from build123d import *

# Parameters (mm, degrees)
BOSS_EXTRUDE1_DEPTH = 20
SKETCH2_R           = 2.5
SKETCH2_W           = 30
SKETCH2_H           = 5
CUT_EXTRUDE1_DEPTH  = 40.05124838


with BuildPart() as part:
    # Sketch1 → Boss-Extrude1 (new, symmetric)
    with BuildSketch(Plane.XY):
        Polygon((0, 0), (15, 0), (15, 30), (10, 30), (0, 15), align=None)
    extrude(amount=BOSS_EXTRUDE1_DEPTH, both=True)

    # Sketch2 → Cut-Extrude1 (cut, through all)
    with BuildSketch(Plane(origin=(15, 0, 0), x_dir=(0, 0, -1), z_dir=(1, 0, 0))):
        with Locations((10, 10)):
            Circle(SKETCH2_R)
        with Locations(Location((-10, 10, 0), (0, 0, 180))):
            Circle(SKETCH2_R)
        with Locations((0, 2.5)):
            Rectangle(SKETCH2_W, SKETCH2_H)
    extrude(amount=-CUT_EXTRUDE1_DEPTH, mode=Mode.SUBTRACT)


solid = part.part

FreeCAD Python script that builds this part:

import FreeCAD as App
import Part
import Sketcher
from FreeCAD import Vector
Q = App.Units.Quantity


def add_polygon(sketch, points):
    """Adds a closed chain of lines whose ends are joined by coincident constraints."""
    first, n = sketch.GeometryCount, len(points)
    for a, b in zip(points, points[1:] + points[:1]):
        sketch.addGeometry(Part.LineSegment(App.Vector(*a, 0), App.Vector(*b, 0)), False)
    for i in range(n):
        sketch.addConstraint(Sketcher.Constraint("Coincident", first + i, 2, first + (i + 1) % n, 1))

doc = App.newDocument("Part")
params = doc.addObject("Spreadsheet::Sheet", "Params")
for row, (alias, value) in enumerate([
    ("sketch1_width", "15 mm"),
    ("sketch1_width2", "5 mm"),
    ("sketch1_height", "30 mm"),
    ("pad1_length", "40 mm"),
    ("sketch2_diameter", "5 mm"),
    ("sketch2_width", "5 mm"),
    ("sketch2_height", "30 mm"),
], start=1):
    params.set(f"A{row}", alias)
    params.set(f"B{row}", "=" + value)
    params.setAlias(f"B{row}", alias)

body = doc.addObject("PartDesign::Body", "Body")

sketch1 = doc.addObject("Sketcher::SketchObject", "Sketch")
body.addObject(sketch1)
sketch1.AttachmentSupport = (doc.XY_Plane, [""])
sketch1.MapMode = "FlatFace"
add_polygon(sketch1, [(0, 0), (15, 0), (15, 30), (10, 30), (0, 15)])
sketch1.addConstraint(Sketcher.Constraint("Horizontal", 0))
sketch1.addConstraint(Sketcher.Constraint("Vertical", 1))
sketch1.addConstraint(Sketcher.Constraint("Horizontal", 2))
sketch1.addConstraint(Sketcher.Constraint("Vertical", 4))
sketch1.addConstraint(Sketcher.Constraint("Coincident", 4, 2, -1, 1))
sketch1.addConstraint(Sketcher.Constraint("Equal", 0, 4))
sketch1.addConstraint(Sketcher.Constraint("DistanceX", 0, 1, 0, 2, Q("15 mm")))
sketch1.addConstraint(Sketcher.Constraint("DistanceX", 2, 2, 2, 1, Q("5 mm")))
sketch1.addConstraint(Sketcher.Constraint("DistanceY", 1, 1, 1, 2, Q("30 mm")))
sketch1.setExpression("Constraints[11]", "Params.sketch1_width")
sketch1.setExpression("Constraints[12]", "Params.sketch1_width2")
sketch1.setExpression("Constraints[13]", "Params.sketch1_height")
pad1 = doc.addObject("PartDesign::Pad", "Pad")
body.addObject(pad1)
pad1.Profile = sketch1
pad1.setExpression("Length", "Params.pad1_length")
pad1.Midplane = True

sketch2 = doc.addObject("Sketcher::SketchObject", "Sketch001")
body.addObject(sketch2)
sketch2.AttachmentSupport = (doc.YZ_Plane, [""])
sketch2.MapMode = "FlatFace"
sketch2.AttachmentOffset = App.Placement(Vector(0, 0, 15), App.Rotation())
sketch2.addGeometry(Part.Circle(Vector(10, -10, 0), Vector(0, 0, 1), 2.5), False)
sketch2.addGeometry(Part.Circle(Vector(10, 10, 0), Vector(0, 0, 1), 2.5), False)
add_polygon(sketch2, [(5, 15), (0, 15), (0, -15), (5, -15)])
sketch2.addConstraint(Sketcher.Constraint("Horizontal", 2))
sketch2.addConstraint(Sketcher.Constraint("Vertical", 3))
sketch2.addConstraint(Sketcher.Constraint("Horizontal", 4))
sketch2.addConstraint(Sketcher.Constraint("Vertical", 5))
sketch2.addConstraint(Sketcher.Constraint("Equal", 0, 1))
sketch2.addConstraint(Sketcher.Constraint("Symmetric", 2, 2, 3, 2, -1, 1))
sketch2.addConstraint(Sketcher.Constraint("Symmetric", 0, 3, 1, 3, -1))
sketch2.addConstraint(Sketcher.Constraint("Diameter", 0, Q("5 mm")))
sketch2.addConstraint(Sketcher.Constraint("DistanceX", 2, 2, 2, 1, Q("5 mm")))
sketch2.addConstraint(Sketcher.Constraint("DistanceY", 3, 2, 3, 1, Q("30 mm")))
sketch2.addConstraint(Sketcher.Constraint("DistanceX", -1, 1, 0, 3, Q("10 mm")))
sketch2.addConstraint(Sketcher.Constraint("DistanceY", 0, 3, -1, 1, Q("10 mm")))
sketch2.setExpression("Constraints[11]", "Params.sketch2_diameter")
sketch2.setExpression("Constraints[12]", "Params.sketch2_width")
sketch2.setExpression("Constraints[13]", "Params.sketch2_height")
pocket1 = doc.addObject("PartDesign::Pocket", "Pocket")
body.addObject(pocket1)
pocket1.Profile = sketch2
pocket1.Type = "ThroughAll"

doc.recompute()
